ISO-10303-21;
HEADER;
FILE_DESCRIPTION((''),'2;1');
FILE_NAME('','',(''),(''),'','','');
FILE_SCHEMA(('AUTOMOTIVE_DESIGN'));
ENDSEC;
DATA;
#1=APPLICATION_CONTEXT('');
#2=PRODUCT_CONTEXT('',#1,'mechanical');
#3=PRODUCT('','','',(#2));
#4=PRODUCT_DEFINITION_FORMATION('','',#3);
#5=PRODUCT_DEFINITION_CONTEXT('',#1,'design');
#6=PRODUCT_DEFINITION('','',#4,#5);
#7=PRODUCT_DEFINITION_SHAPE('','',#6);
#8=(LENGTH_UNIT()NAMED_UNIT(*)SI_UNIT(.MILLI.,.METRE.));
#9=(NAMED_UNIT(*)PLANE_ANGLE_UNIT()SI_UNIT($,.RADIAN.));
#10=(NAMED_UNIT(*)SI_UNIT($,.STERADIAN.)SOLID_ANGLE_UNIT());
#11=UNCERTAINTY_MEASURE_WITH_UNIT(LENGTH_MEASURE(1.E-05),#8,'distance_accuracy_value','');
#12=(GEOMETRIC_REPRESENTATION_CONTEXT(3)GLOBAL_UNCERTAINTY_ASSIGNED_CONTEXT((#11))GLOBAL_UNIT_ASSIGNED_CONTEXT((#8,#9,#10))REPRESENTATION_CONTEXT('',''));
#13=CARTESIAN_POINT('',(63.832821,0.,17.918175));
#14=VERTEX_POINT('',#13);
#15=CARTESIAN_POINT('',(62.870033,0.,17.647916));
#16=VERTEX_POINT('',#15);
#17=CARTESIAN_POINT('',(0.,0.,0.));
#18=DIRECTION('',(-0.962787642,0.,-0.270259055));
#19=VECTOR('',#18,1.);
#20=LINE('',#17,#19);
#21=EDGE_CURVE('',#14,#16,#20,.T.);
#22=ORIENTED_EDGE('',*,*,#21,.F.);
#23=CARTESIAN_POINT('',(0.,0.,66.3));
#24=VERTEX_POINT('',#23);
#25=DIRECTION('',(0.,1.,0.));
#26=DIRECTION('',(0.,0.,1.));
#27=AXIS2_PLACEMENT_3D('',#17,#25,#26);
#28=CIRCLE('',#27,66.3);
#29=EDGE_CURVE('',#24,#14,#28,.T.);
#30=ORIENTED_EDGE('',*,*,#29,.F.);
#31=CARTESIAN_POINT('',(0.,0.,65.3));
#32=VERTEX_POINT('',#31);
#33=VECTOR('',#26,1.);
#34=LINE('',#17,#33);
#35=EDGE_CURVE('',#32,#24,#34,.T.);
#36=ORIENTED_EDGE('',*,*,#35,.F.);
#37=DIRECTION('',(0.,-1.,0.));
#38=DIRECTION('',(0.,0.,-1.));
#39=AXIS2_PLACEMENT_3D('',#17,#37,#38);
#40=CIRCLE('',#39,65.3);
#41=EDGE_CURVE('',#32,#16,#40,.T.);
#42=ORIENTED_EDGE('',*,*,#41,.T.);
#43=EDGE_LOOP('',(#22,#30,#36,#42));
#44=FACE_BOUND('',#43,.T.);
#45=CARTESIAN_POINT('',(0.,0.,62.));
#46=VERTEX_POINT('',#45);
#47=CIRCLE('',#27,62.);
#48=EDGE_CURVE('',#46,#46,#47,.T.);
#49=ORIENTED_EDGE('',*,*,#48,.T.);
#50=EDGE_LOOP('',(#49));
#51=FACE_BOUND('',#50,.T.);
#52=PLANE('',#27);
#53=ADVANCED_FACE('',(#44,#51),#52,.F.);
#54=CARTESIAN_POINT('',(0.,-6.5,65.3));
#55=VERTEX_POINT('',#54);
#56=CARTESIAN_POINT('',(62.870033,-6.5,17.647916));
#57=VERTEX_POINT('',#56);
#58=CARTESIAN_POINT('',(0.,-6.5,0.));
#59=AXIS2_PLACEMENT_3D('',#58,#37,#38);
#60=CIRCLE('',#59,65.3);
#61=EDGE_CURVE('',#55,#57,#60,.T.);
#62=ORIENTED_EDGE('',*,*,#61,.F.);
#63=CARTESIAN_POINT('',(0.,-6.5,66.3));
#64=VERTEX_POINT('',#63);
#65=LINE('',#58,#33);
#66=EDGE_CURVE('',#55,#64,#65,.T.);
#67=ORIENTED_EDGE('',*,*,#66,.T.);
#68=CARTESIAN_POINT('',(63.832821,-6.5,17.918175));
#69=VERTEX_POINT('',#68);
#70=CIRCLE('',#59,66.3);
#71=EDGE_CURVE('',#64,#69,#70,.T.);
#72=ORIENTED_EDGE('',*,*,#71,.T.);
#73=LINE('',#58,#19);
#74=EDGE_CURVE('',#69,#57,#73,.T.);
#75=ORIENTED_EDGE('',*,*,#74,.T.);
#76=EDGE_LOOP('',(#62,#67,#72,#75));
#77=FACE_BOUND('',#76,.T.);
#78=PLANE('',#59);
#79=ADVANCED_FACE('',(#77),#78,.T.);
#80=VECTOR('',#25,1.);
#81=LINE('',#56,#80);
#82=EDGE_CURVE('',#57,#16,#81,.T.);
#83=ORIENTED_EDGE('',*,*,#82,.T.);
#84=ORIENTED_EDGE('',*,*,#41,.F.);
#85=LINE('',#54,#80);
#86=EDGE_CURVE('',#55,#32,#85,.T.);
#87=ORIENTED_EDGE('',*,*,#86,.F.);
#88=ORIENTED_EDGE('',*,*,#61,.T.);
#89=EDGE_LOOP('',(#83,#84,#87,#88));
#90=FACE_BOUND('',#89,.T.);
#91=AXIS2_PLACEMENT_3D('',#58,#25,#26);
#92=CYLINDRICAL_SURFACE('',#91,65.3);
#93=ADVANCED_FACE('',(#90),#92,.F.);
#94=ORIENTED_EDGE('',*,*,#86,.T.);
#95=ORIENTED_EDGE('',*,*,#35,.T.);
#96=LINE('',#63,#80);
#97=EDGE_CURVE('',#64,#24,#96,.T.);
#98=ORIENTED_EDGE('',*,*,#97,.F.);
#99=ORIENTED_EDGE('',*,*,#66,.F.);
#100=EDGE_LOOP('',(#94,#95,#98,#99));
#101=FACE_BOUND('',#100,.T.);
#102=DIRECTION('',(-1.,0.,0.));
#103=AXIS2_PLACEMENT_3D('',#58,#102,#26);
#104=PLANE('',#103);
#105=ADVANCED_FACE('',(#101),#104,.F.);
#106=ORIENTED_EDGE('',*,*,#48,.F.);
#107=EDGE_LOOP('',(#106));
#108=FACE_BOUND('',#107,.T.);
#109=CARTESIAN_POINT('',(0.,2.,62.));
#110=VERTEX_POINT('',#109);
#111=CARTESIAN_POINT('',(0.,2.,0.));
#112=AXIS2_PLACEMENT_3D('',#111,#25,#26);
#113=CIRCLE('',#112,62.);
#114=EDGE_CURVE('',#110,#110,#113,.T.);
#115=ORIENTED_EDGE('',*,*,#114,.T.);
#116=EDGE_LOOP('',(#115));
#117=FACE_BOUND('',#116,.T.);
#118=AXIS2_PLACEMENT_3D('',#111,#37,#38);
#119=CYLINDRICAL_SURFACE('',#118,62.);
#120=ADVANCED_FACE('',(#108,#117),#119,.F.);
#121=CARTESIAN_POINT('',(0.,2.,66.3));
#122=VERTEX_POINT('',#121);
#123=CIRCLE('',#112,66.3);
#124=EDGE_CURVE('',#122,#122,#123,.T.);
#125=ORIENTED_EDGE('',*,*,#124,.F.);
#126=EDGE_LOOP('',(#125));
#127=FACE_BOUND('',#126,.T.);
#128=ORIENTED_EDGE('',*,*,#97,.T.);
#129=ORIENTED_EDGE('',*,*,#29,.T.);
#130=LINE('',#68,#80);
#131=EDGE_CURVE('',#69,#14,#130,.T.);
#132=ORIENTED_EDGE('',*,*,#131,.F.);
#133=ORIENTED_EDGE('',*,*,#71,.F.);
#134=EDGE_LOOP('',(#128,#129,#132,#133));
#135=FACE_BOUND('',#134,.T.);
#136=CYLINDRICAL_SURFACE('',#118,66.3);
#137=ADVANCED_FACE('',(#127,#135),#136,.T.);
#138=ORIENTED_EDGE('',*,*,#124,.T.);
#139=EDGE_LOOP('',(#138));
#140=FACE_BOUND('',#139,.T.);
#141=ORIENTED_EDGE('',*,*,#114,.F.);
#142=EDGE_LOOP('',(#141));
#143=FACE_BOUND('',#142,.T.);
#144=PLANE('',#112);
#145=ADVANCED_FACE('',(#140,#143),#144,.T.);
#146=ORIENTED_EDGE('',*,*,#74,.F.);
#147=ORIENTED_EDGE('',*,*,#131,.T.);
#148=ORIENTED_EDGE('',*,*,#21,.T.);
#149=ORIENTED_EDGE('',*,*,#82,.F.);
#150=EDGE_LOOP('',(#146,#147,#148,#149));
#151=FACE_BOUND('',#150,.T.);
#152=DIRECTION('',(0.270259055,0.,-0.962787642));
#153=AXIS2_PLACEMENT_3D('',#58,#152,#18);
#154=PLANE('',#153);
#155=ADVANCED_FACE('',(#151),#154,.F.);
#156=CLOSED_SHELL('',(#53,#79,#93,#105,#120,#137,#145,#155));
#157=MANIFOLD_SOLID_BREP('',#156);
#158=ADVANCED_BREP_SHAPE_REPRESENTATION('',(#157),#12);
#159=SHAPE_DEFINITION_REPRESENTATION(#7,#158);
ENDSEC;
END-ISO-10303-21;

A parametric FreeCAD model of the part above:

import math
import FreeCAD as App
import Part
import Sketcher

V = App.Vector
Q = App.Units.Quantity

doc = App.newDocument("Part")
params = doc.addObject("Spreadsheet::Sheet", "Params")
for row, (alias, value) in enumerate([
    ("sketch1_diameter", "124 mm"),
    ("sketch1_diameter2", "132.6 mm"),
    ("pad1_length", "2 mm"),
    ("sketch2_radius", "65.3 mm"),
    ("sketch2_radius2", "66.3 mm"),
    ("pad2_length", "6.5 mm"),
], start=1):
    params.set(f"A{row}", alias)
    params.set(f"B{row}", "=" + value)
    params.setAlias(f"B{row}", alias)

body = doc.addObject("PartDesign::Body", "Body")

sketch1 = body.newObject("Sketcher::SketchObject", "Sketch")
sketch1.AttachmentSupport = (doc.getObject("XZ_Plane"), [""])
sketch1.MapMode = "FlatFace"
sketch1.addGeometry([
    Part.Circle(V(0, 0, 0), V(0, 0, 1), 66.3),
    Part.Circle(V(0, 0, 0), V(0, 0, 1), 62),
], False)
sketch1.addConstraint([
    Sketcher.Constraint("Coincident", 0, 3, -1, 1),
    Sketcher.Constraint("Coincident", 1, 3, -1, 1),
    Sketcher.Constraint("Diameter", 1, Q("124 mm")),
    Sketcher.Constraint("Diameter", 0, Q("132.6 mm")),
])
sketch1.setExpression("Constraints[2]", "Params.sketch1_diameter")
sketch1.setExpression("Constraints[3]", "Params.sketch1_diameter2")
pad1 = body.newObject("PartDesign::Pad", "Pad")
pad1.Profile = sketch1
pad1.setExpression("Length", "Params.pad1_length")
pad1.Reversed = True

sketch2 = body.newObject("Sketcher::SketchObject", "Sketch001")
sketch2.AttachmentSupport = (doc.getObject("XZ_Plane"), [""])
sketch2.MapMode = "FlatFace"
sketch2.AttachmentOffset = App.Placement(V(0, 0, 6.5), App.Rotation())
sketch2.addGeometry([
    Part.ArcOfCircle(Part.Circle(V(0, 0, 0), V(0, 0, 1), 65.3), math.radians(90), math.radians(360)),
    Part.LineSegment(V(0, 65.3, 0), V(0, 66.3, 0)),
    Part.ArcOfCircle(Part.Circle(V(0, 0, 0), V(0, 0, 1), 66.3), math.radians(90), math.radians(360)),
    Part.ArcOfCircle(Part.Circle(V(0, 0, 0), V(0, 0, 1), 66.3), math.radians(0), math.radians(15.679683)),
    Part.LineSegment(V(63.832821, 17.918175, 0), V(62.870033, 17.647916, 0)),
    Part.ArcOfCircle(Part.Circle(V(0, 0, 0), V(0, 0, 1), 65.3), math.radians(0), math.radians(15.679683)),
], False)
sketch2.addConstraint([
    Sketcher.Constraint("Coincident", 0, 1, 1, 1),
    Sketcher.Constraint("Coincident", 1, 2, 2, 1),
    Sketcher.Constraint("Tangent", 2, 2, 3, 1),
    Sketcher.Constraint("Coincident", 3, 2, 4, 1),
    Sketcher.Constraint("Coincident", 4, 2, 5, 2),
    Sketcher.Constraint("Tangent", 5, 1, 0, 2),
    Sketcher.Constraint("Vertical", 1),
    Sketcher.Constraint("Coincident", 0, 3, -1, 1),
    Sketcher.Constraint("Coincident", 2, 3, -1, 1),
    Sketcher.Constraint("Equal", 2, 3),
    Sketcher.Constraint("Equal", 0, 5),
    Sketcher.Constraint("PointOnObject", 0, 1, -2),
    Sketcher.Constraint("PointOnObject", 2, 2, -1),
    Sketcher.Constraint("PointOnObject", 5, 1, -1),
    Sketcher.Constraint("Radius", 0, Q("65.3 mm")),
    Sketcher.Constraint("Radius", 2, Q("66.3 mm")),
    Sketcher.Constraint("DistanceX", -1, 1, 3, 2, Q("63.832821 mm")),
    Sketcher.Constraint("DistanceY", 4, 2, 3, 2, Q("0.270259 mm")),
])
sketch2.setExpression("Constraints[14]", "Params.sketch2_radius")
sketch2.setExpression("Constraints[15]", "Params.sketch2_radius2")
pad2 = body.newObject("PartDesign::Pad", "Pad001")
pad2.Profile = sketch2
pad2.setExpression("Length", "Params.pad2_length")
pad2.Reversed = True

doc.recompute()
